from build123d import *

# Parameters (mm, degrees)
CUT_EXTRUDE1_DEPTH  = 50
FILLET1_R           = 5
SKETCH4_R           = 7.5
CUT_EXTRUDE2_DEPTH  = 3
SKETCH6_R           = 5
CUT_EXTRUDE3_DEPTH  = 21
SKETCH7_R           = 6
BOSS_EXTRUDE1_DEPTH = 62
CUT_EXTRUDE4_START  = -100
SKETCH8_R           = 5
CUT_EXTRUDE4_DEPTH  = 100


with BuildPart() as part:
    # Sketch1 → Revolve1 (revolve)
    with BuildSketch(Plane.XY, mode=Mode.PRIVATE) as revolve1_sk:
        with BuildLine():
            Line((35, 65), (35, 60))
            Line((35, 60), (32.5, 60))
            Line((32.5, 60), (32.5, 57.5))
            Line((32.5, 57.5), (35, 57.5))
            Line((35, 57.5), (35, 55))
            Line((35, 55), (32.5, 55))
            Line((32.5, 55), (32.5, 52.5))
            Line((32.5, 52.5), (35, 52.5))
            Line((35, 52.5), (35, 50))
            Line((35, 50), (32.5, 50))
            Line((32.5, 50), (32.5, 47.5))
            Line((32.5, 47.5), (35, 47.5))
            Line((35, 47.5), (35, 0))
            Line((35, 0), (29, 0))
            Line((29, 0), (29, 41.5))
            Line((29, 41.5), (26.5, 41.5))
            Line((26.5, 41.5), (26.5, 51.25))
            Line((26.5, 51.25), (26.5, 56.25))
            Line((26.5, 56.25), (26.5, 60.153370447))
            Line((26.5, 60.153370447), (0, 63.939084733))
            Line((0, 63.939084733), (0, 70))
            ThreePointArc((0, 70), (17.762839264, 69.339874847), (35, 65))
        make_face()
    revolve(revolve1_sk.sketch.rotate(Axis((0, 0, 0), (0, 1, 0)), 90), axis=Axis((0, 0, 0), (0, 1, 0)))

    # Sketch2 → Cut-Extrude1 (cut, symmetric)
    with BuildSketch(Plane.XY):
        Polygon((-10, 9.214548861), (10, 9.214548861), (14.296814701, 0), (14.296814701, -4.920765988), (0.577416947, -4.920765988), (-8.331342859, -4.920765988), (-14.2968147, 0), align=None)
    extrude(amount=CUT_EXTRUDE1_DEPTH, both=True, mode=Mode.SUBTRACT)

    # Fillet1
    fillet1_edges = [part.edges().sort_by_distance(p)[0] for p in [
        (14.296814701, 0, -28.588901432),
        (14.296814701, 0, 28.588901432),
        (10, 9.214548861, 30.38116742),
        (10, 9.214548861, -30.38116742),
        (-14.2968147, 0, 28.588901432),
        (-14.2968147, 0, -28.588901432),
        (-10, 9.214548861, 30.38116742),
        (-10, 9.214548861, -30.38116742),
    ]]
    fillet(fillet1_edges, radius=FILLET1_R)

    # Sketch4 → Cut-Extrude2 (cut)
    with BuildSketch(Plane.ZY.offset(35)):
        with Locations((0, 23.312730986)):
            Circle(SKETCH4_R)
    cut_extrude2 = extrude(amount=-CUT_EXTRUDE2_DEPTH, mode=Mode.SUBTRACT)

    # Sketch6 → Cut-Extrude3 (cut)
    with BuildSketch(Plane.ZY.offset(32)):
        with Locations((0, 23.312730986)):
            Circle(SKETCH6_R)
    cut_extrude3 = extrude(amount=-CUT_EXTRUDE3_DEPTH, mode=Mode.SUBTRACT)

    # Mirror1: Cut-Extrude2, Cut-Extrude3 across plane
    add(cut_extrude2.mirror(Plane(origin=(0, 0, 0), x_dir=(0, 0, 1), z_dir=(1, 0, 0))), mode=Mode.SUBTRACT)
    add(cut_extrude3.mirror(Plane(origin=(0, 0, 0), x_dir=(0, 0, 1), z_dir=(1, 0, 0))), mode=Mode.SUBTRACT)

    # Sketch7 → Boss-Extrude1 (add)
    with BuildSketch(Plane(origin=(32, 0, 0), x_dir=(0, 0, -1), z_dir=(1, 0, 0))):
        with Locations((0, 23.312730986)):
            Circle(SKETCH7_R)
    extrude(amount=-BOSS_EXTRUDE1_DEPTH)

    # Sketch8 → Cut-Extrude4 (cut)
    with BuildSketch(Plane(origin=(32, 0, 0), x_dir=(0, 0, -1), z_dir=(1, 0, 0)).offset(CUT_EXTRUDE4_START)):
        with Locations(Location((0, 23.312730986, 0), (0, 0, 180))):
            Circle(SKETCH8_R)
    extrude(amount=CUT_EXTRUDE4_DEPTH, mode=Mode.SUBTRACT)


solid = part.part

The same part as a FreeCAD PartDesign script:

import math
import FreeCAD as App
import Part
import Sketcher
from FreeCAD import Vector
Q = App.Units.Quantity


def edges_at(feature, points):
    """Names of the edges that pass closest to the given points."""
    edges = feature.Shape.Edges
    near = lambda p: min(range(len(edges)), key=lambda i: edges[i].distToShape(Part.Vertex(*p))[0])
    return sorted({f"Edge{near(p) + 1}" for p in points})


def add_polygon(sketch, points):
    """Adds a closed chain of lines whose ends are joined by coincident constraints."""
    first, n = sketch.GeometryCount, len(points)
    for a, b in zip(points, points[1:] + points[:1]):
        sketch.addGeometry(Part.LineSegment(App.Vector(*a, 0), App.Vector(*b, 0)), False)
    for i in range(n):
        sketch.addConstraint(Sketcher.Constraint("Coincident", first + i, 2, first + (i + 1) % n, 1))

doc = App.newDocument("Part")
body = doc.addObject("PartDesign::Body", "Body")

sketch1 = body.newObject("Sketcher::SketchObject", "Sketch")
sketch1.AttachmentSupport = (doc.getObject("XY_Plane"), [""])
sketch1.MapMode = "FlatFace"
sketch1.addGeometry(Part.LineSegment(Vector(35, 60, 0), Vector(35, 65, 0)), False)
sketch1.addGeometry(Part.ArcOfCircle(Part.Circle(Vector(5.7, -14.8, 0), Vector(0, 0, 1), 85), math.radians(70), math.radians(94)), False)
sketch1.addGeometry(Part.LineSegment(Vector(0, 70, 0), Vector(0, 63.9, 0)), False)
sketch1.addGeometry(Part.LineSegment(Vector(0, 63.9, 0), Vector(26.5, 60.2, 0)), False)
sketch1.addGeometry(Part.LineSegment(Vector(26.5, 60.2, 0), Vector(26.5, 41.5, 0)), False)
sketch1.addGeometry(Part.LineSegment(Vector(26.5, 41.5, 0), Vector(29, 41.5, 0)), False)
sketch1.addGeometry(Part.LineSegment(Vector(29, 41.5, 0), Vector(29, 0, 0)), False)
sketch1.addGeometry(Part.LineSegment(Vector(29, 0, 0), Vector(35, 0, 0)), False)
sketch1.addGeometry(Part.LineSegment(Vector(35, 0, 0), Vector(35, 47.5, 0)), False)
sketch1.addGeometry(Part.LineSegment(Vector(35, 47.5, 0), Vector(32.5, 47.5, 0)), False)
sketch1.addGeometry(Part.LineSegment(Vector(32.5, 47.5, 0), Vector(32.5, 50, 0)), False)
sketch1.addGeometry(Part.LineSegment(Vector(32.5, 50, 0), Vector(35, 50, 0)), False)
sketch1.addGeometry(Part.LineSegment(Vector(35, 50, 0), Vector(35, 52.5, 0)), False)
sketch1.addGeometry(Part.LineSegment(Vector(35, 52.5, 0), Vector(32.5, 52.5, 0)), False)
sketch1.addGeometry(Part.LineSegment(Vector(32.5, 52.5, 0), Vector(32.5, 55, 0)), False)
sketch1.addGeometry(Part.LineSegment(Vector(32.5, 55, 0), Vector(35, 55, 0)), False)
sketch1.addGeometry(Part.LineSegment(Vector(35, 55, 0), Vector(35, 57.5, 0)), False)
sketch1.addGeometry(Part.LineSegment(Vector(35, 57.5, 0), Vector(32.5, 57.5, 0)), False)
sketch1.addGeometry(Part.LineSegment(Vector(32.5, 57.5, 0), Vector(32.5, 60, 0)), False)
sketch1.addGeometry(Part.LineSegment(Vector(32.5, 60, 0), Vector(35, 60, 0)), False)
sketch1.addConstraint(Sketcher.Constraint("Coincident", 0, 2, 1, 1))
sketch1.addConstraint(Sketcher.Constraint("Coincident", 1, 2, 2, 1))
sketch1.addConstraint(Sketcher.Constraint("Coincident", 2, 2, 3, 1))
sketch1.addConstraint(Sketcher.Constraint("Coincident", 3, 2, 4, 1))
sketch1.addConstraint(Sketcher.Constraint("Coincident", 4, 2, 5, 1))
sketch1.addConstraint(Sketcher.Constraint("Coincident", 5, 2, 6, 1))
sketch1.addConstraint(Sketcher.Constraint("Coincident", 6, 2, 7, 1))
sketch1.addConstraint(Sketcher.Constraint("Coincident", 7, 2, 8, 1))
sketch1.addConstraint(Sketcher.Constraint("Coincident", 8, 2, 9, 1))
sketch1.addConstraint(Sketcher.Constraint("Coincident", 9, 2, 10, 1))
sketch1.addConstraint(Sketcher.Constraint("Coincident", 10, 2, 11, 1))
sketch1.addConstraint(Sketcher.Constraint("Coincident", 11, 2, 12, 1))
sketch1.addConstraint(Sketcher.Constraint("Coincident", 12, 2, 13, 1))
sketch1.addConstraint(Sketcher.Constraint("Coincident", 13, 2, 14, 1))
sketch1.addConstraint(Sketcher.Constraint("Coincident", 14, 2, 15, 1))
sketch1.addConstraint(Sketcher.Constraint("Coincident", 15, 2, 16, 1))
sketch1.addConstraint(Sketcher.Constraint("Coincident", 16, 2, 17, 1))
sketch1.addConstraint(Sketcher.Constraint("Coincident", 17, 2, 18, 1))
sketch1.addConstraint(Sketcher.Constraint("Coincident", 18, 2, 19, 1))
sketch1.addConstraint(Sketcher.Constraint("Coincident", 19, 2, 0, 1))
sketch1.addConstraint(Sketcher.Constraint("Vertical", 0))
sketch1.addConstraint(Sketcher.Constraint("Vertical", 2))
sketch1.addConstraint(Sketcher.Constraint("Vertical", 4))
sketch1.addConstraint(Sketcher.Constraint("Horizontal", 5))
sketch1.addConstraint(Sketcher.Constraint("Vertical", 6))
sketch1.addConstraint(Sketcher.Constraint("Horizontal", 7))
sketch1.addConstraint(Sketcher.Constraint("Vertical", 8))
sketch1.addConstraint(Sketcher.Constraint("Horizontal", 9))
sketch1.addConstraint(Sketcher.Constraint("Vertical", 10))
sketch1.addConstraint(Sketcher.Constraint("Horizontal", 11))
sketch1.addConstraint(Sketcher.Constraint("Vertical", 12))
sketch1.addConstraint(Sketcher.Constraint("Horizontal", 13))
sketch1.addConstraint(Sketcher.Constraint("Vertical", 14))
sketch1.addConstraint(Sketcher.Constraint("Horizontal", 15))
sketch1.addConstraint(Sketcher.Constraint("Vertical", 16))
sketch1.addConstraint(Sketcher.Constraint("Horizontal", 17))
sketch1.addConstraint(Sketcher.Constraint("Vertical", 18))
sketch1.addConstraint(Sketcher.Constraint("Horizontal", 19))
sketch1.addConstraint(Sketcher.Constraint("PointOnObject", 1, 2, -2))
sketch1.addConstraint(Sketcher.Constraint("PointOnObject", 6, 2, -1))
sketch1.addConstraint(Sketcher.Constraint("Vertical", 0, 2, 7, 2))
sketch1.addConstraint(Sketcher.Constraint("Vertical", 8, 2, 11, 2))
sketch1.addConstraint(Sketcher.Constraint("Vertical", 10, 2, 13, 2))
sketch1.addConstraint(Sketcher.Constraint("Vertical", 12, 2, 15, 2))
sketch1.addConstraint(Sketcher.Constraint("Vertical", 14, 2, 17, 2))
sketch1.addConstraint(Sketcher.Constraint("Equal", 5, 9))
sketch1.addConstraint(Sketcher.Constraint("Equal", 19, 10))
sketch1.addConstraint(Sketcher.Constraint("Equal", 10, 12))
sketch1.addConstraint(Sketcher.Constraint("Equal", 12, 14))
sketch1.addConstraint(Sketcher.Constraint("Equal", 14, 16))
sketch1.addConstraint(Sketcher.Constraint("Equal", 16, 18))
sketch1.addConstraint(Sketcher.Constraint("Radius", 1, 85.0))
sketch1.addConstraint(Sketcher.Constraint("DistanceX", 7, 1, 7, 2, 6.0))
sketch1.addConstraint(Sketcher.Constraint("DistanceY", 0, 1, 0, 2, 5.0))
sketch1.addConstraint(Sketcher.Constraint("DistanceX", 5, 1, 5, 2, 2.5))
sketch1.addConstraint(Sketcher.Constraint("DistanceY", 6, 2, 6, 1, 41.5))
sketch1.addConstraint(Sketcher.Constraint("DistanceY", 8, 1, 8, 2, 47.5))
sketch1.addConstraint(Sketcher.Constraint("DistanceX", -1, 1, 0, 2, 35.0))
sketch1.addConstraint(Sketcher.Constraint("DistanceY", -1, 1, 1, 2, 70.0))
sketch1.addConstraint(Sketcher.Constraint("DistanceY", 4, 2, 4, 1, 18.65337))
sketch1.addConstraint(Sketcher.Constraint("DistanceY", 2, 2, 2, 1, 6.060915))
revolution = body.newObject("PartDesign::Revolution", "Revolution")
revolution.Profile = sketch1
revolution.ReferenceAxis = (sketch1, ["V_Axis"])
revolution.Angle = 360

sketch2 = body.newObject("Sketcher::SketchObject", "Sketch001")
sketch2.AttachmentSupport = (doc.getObject("XY_Plane"), [""])
sketch2.MapMode = "FlatFace"
add_polygon(sketch2, [(10, 9.2), (-10, 9.2), (-14.3, 0), (-8.3, -4.9), (14.3, -4.9), (14.3, 0)])
sketch2.addConstraint(Sketcher.Constraint("Horizontal", 0))
sketch2.addConstraint(Sketcher.Constraint("Horizontal", 3))
sketch2.addConstraint(Sketcher.Constraint("Vertical", 4))
sketch2.addConstraint(Sketcher.Constraint("Symmetric", 1, 2, 4, 2, -1, 1))
sketch2.addConstraint(Sketcher.Constraint("PointOnObject", 1, 2, -1))
sketch2.addConstraint(Sketcher.Constraint("Equal", 1, 5))
sketch2.addConstraint(Sketcher.Constraint("DistanceX", 0, 2, 0, 1, 20.0))
sketch2.addConstraint(Sketcher.Constraint("Angle", 1, Q("-115 deg")))
sketch2.addConstraint(Sketcher.Constraint("Distance", 1, 10.16713))
sketch2.addConstraint(Sketcher.Constraint("DistanceX", 3, 1, 3, 2, 22.628158))
sketch2.addConstraint(Sketcher.Constraint("DistanceY", 4, 1, 4, 2, 4.920766))
pocket1 = body.newObject("PartDesign::Pocket", "Pocket")
pocket1.Profile = sketch2
pocket1.Length = 100
pocket1.Midplane = True
doc.recompute()

fillet = body.newObject("PartDesign::Fillet", "Fillet")
fillet.Base = (pocket1, edges_at(pocket1, [
    (14.297, 0, -28.589),
    (14.297, 0, 28.589),
    (10, 9.215, 30.381),
    (10, 9.215, -30.381),
    (-14.297, 0, 28.589),
    (-14.297, 0, -28.589),
    (-10, 9.215, 30.381),
    (-10, 9.215, -30.381),
]))
fillet.Radius = 5

sketch3 = body.newObject("Sketcher::SketchObject", "Sketch002")
sketch3.AttachmentSupport = (doc.getObject("YZ_Plane"), [""])
sketch3.MapMode = "FlatFace"
sketch3.AttachmentOffset = App.Placement(Vector(0, 0, -35), App.Rotation())
sketch3.addGeometry(Part.Circle(Vector(23, 0, 0), Vector(0, 0, 1), 8), False)
sketch3.addConstraint(Sketcher.Constraint("PointOnObject", 0, 3, -1))
sketch3.addConstraint(Sketcher.Constraint("Diameter", 0, 15.0))
sketch3.addConstraint(Sketcher.Constraint("DistanceX", -1, 1, 0, 3, 23.312731))
pocket2 = body.newObject("PartDesign::Pocket", "Pocket001")
pocket2.Profile = sketch3
pocket2.Length = 3
pocket2.Reversed = True

sketch4 = body.newObject("Sketcher::SketchObject", "Sketch003")
sketch4.AttachmentSupport = (doc.getObject("YZ_Plane"), [""])
sketch4.MapMode = "FlatFace"
sketch4.AttachmentOffset = App.Placement(Vector(0, 0, -32), App.Rotation())
sketch4.addGeometry(Part.Circle(Vector(23, 0, 0), Vector(0, 0, 1), 5), False)
sketch4.addConstraint(Sketcher.Constraint("PointOnObject", 0, 3, -1))
sketch4.addConstraint(Sketcher.Constraint("Diameter", 0, 10.0))
sketch4.addConstraint(Sketcher.Constraint("DistanceX", -1, 1, 0, 3, 23.312731))
pocket3 = body.newObject("PartDesign::Pocket", "Pocket002")
pocket3.Profile = sketch4
pocket3.Length = 21
pocket3.Reversed = True
doc.recompute()

mirrored = body.newObject("PartDesign::Mirrored", "Mirrored")
mirrored.Originals = [pocket2, pocket3]
mirrored.MirrorPlane = (doc.getObject("YZ_Plane"), [""])
body.Tip = mirrored

sketch5 = body.newObject("Sketcher::SketchObject", "Sketch004")
sketch5.AttachmentSupport = (doc.getObject("YZ_Plane"), [""])
sketch5.MapMode = "FlatFace"
sketch5.AttachmentOffset = App.Placement(Vector(0, 0, 32), App.Rotation())
sketch5.addGeometry(Part.Circle(Vector(23, 0, 0), Vector(0, 0, 1), 6), False)
sketch5.addConstraint(Sketcher.Constraint("PointOnObject", 0, 3, -1))
sketch5.addConstraint(Sketcher.Constraint("Diameter", 0, 12.0))
sketch5.addConstraint(Sketcher.Constraint("DistanceX", -1, 1, 0, 3, 23.312731))
pad1 = body.newObject("PartDesign::Pad", "Pad")
pad1.Profile = sketch5
pad1.Length = 62
pad1.Reversed = True

sketch6 = body.newObject("Sketcher::SketchObject", "Sketch005")
sketch6.AttachmentSupport = (doc.getObject("YZ_Plane"), [""])
sketch6.MapMode = "FlatFace"
sketch6.AttachmentOffset = App.Placement(Vector(0, 0, -68), App.Rotation())
sketch6.addGeometry(Part.Circle(Vector(23, 0, 0), Vector(0, 0, 1), 5), False)
sketch6.addConstraint(Sketcher.Constraint("PointOnObject", 0, 3, -1))
sketch6.addConstraint(Sketcher.Constraint("Diameter", 0, 10.0))
sketch6.addConstraint(Sketcher.Constraint("DistanceX", -1, 1, 0, 3, 23.312731))
pocket4 = body.newObject("PartDesign::Pocket", "Pocket003")
pocket4.Profile = sketch6
pocket4.Length = 100
pocket4.Reversed = True

doc.recompute()
